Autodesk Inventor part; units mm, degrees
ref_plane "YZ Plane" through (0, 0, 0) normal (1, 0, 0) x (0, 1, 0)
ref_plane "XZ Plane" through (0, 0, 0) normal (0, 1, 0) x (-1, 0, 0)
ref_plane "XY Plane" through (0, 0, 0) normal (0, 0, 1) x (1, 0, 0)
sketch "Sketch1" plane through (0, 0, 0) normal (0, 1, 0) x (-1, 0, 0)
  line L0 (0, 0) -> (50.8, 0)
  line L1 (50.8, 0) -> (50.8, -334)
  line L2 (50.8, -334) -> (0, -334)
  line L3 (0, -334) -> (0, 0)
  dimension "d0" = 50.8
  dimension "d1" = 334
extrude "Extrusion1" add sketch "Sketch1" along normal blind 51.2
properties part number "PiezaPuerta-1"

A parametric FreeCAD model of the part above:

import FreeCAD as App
import Part
import Sketcher

V = App.Vector


def add_polygon(sketch, points):
    """Adds a closed chain of lines whose ends are joined by coincident constraints."""
    first, n = sketch.GeometryCount, len(points)
    for a, b in zip(points, points[1:] + points[:1]):
        sketch.addGeometry(Part.LineSegment(App.Vector(*a, 0), App.Vector(*b, 0)), False)
    for i in range(n):
        sketch.addConstraint(Sketcher.Constraint("Coincident", first + i, 2, first + (i + 1) % n, 1))

doc = App.newDocument("Part")
body = doc.addObject("PartDesign::Body", "Body")

# Sketch on XZ plane
sketch1 = body.newObject("Sketcher::SketchObject", "Sketch")
sketch1.AttachmentSupport = (doc.getObject("XZ_Plane"), [""])
sketch1.MapMode = "FlatFace"
add_polygon(sketch1, [(-51, 0), (0, 0), (0, -334), (-51, -334)])  # lines 0-3
sketch1.addConstraint([
    Sketcher.Constraint("Horizontal", 0),
    Sketcher.Constraint("Vertical", 1),
    Sketcher.Constraint("Horizontal", 2),
    Sketcher.Constraint("Vertical", 3),
    Sketcher.Constraint("Coincident", 0, 2, -1, 1),
    Sketcher.Constraint("DistanceY", 1, 2, 1, 1, 334.0),
    Sketcher.Constraint("DistanceX", 0, 1, 0, 2, 50.8),
])
pad1 = body.newObject("PartDesign::Pad", "Pad")
pad1.Profile = sketch1
pad1.Length = 51.2
pad1.Reversed = True

doc.recompute()
